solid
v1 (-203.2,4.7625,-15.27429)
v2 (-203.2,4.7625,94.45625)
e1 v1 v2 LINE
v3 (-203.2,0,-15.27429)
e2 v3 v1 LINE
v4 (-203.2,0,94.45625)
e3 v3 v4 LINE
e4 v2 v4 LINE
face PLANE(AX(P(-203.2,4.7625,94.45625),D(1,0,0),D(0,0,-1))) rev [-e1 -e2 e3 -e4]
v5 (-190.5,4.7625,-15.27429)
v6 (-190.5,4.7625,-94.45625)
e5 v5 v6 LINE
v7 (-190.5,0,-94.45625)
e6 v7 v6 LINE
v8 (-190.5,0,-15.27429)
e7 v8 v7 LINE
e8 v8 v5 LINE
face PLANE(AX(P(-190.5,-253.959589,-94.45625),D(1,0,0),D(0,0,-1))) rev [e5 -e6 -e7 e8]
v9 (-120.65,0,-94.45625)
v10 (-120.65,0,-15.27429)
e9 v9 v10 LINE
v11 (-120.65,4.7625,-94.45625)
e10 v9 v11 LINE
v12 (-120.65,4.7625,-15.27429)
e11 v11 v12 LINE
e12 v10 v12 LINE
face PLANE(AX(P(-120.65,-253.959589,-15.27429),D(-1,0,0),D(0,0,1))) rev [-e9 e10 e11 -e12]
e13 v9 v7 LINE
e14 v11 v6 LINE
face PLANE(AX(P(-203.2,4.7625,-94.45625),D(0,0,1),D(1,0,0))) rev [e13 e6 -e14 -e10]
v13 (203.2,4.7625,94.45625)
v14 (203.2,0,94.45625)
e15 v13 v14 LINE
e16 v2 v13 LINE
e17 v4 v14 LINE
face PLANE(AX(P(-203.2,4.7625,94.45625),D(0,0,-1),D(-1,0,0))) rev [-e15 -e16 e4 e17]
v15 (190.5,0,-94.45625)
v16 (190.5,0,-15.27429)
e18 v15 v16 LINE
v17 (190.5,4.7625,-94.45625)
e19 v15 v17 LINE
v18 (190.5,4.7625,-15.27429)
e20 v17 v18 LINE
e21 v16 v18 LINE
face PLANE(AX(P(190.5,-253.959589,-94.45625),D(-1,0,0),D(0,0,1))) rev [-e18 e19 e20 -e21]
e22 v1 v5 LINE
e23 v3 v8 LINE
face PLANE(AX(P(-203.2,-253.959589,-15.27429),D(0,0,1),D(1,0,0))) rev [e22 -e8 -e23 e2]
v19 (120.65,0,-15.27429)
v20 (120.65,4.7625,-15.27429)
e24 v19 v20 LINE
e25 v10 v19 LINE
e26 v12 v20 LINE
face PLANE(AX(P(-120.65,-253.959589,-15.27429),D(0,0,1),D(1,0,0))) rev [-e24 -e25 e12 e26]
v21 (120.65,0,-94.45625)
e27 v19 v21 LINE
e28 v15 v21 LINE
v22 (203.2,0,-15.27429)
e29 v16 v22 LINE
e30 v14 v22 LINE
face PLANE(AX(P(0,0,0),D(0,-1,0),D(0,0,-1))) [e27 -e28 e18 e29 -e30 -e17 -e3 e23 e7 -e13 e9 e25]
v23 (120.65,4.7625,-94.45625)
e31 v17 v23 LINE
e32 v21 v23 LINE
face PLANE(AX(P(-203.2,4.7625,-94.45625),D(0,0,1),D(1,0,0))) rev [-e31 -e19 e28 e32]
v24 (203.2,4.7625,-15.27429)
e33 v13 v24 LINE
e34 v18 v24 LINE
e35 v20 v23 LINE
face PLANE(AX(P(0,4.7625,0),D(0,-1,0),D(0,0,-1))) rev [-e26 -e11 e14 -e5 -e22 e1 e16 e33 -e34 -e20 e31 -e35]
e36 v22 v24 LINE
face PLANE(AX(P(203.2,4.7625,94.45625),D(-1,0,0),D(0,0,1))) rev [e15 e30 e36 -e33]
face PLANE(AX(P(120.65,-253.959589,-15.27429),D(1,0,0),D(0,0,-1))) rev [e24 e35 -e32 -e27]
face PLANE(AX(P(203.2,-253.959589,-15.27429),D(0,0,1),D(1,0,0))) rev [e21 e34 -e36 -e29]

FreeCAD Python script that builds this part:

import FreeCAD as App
import Part
import Sketcher
from FreeCAD import Vector
Q = App.Units.Quantity


def add_polygon(sketch, points):
    """Adds a closed chain of lines whose ends are joined by coincident constraints."""
    first, n = sketch.GeometryCount, len(points)
    for a, b in zip(points, points[1:] + points[:1]):
        sketch.addGeometry(Part.LineSegment(App.Vector(*a, 0), App.Vector(*b, 0)), False)
    for i in range(n):
        sketch.addConstraint(Sketcher.Constraint("Coincident", first + i, 2, first + (i + 1) % n, 1))

doc = App.newDocument("Part")
body = doc.addObject("PartDesign::Body", "Body")

# Sketch on XZ plane
sketch1 = body.newObject("Sketcher::SketchObject", "Sketch")
sketch1.AttachmentSupport = (doc.getObject("XZ_Plane"), [""])
sketch1.MapMode = "FlatFace"
add_polygon(sketch1, [(-203, -94), (-203, 94), (203, 94), (203, -94)])  # lines 0-3
sketch1.addConstraint(Sketcher.Constraint("Vertical", 0))
sketch1.addConstraint(Sketcher.Constraint("Horizontal", 1))
sketch1.addConstraint(Sketcher.Constraint("Vertical", 2))
sketch1.addConstraint(Sketcher.Constraint("Horizontal", 3))
sketch1.addConstraint(Sketcher.Constraint("Symmetric", 0, 2, 2, 2, -1, 1))
sketch1.addConstraint(Sketcher.Constraint("DistanceX", 1, 1, 1, 2, Q("16 in")))
sketch1.addConstraint(Sketcher.Constraint("DistanceY", 0, 1, 0, 2, Q("7.4375 in")))
pad1 = body.newObject("PartDesign::Pad", "Pad")
pad1.Profile = sketch1
pad1.Length = Q("0.1875 in")
pad1.Reversed = True

# Sketch on XZ plane
sketch2 = body.newObject("Sketcher::SketchObject", "Sketch001")
sketch2.AttachmentSupport = (doc.getObject("XZ_Plane"), [""])
sketch2.MapMode = "FlatFace"
sketch2.AttachmentOffset = App.Placement(Vector(0, 0, -0.1875 * 25.4), App.Rotation())
add_polygon(sketch2, [(-203, -94), (-203, -15), (-190, -15), (-190, -94)])  # lines 0-3
add_polygon(sketch2, [(190, -94), (190, -15), (203, -15), (203, -94)])  # lines 4-7
add_polygon(sketch2, [(-121, -94), (-121, -15), (121, -15), (121, -94)])  # lines 8-11
sketch2.addConstraint(Sketcher.Constraint("Vertical", 0))
sketch2.addConstraint(Sketcher.Constraint("Horizontal", 1))
sketch2.addConstraint(Sketcher.Constraint("Vertical", 2))
sketch2.addConstraint(Sketcher.Constraint("Horizontal", 3))
sketch2.addConstraint(Sketcher.Constraint("Vertical", 4))
sketch2.addConstraint(Sketcher.Constraint("Horizontal", 5))
sketch2.addConstraint(Sketcher.Constraint("Vertical", 6))
sketch2.addConstraint(Sketcher.Constraint("Horizontal", 7))
sketch2.addConstraint(Sketcher.Constraint("Vertical", 8))
sketch2.addConstraint(Sketcher.Constraint("Horizontal", 9))
sketch2.addConstraint(Sketcher.Constraint("Vertical", 10))
sketch2.addConstraint(Sketcher.Constraint("Horizontal", 11))
sketch2.addConstraint(Sketcher.Constraint("Symmetric", 1, 2, 4, 2, -2))
sketch2.addConstraint(Sketcher.Constraint("Symmetric", 3, 2, 6, 2, -2))
sketch2.addConstraint(Sketcher.Constraint("Horizontal", 5, 2, 8, 2))
sketch2.addConstraint(Sketcher.Constraint("Horizontal", 7, 2, 10, 2))
sketch2.addConstraint(Sketcher.Constraint("DistanceX", 1, 1, 1, 2, Q("0.5 in")))
sketch2.addConstraint(Sketcher.Constraint("DistanceX", 9, 1, 9, 2, Q("9.5 in")))
sketch2.addConstraint(Sketcher.Constraint("DistanceX", 0, 2, -1, 1, Q("8 in")))
sketch2.addConstraint(Sketcher.Constraint("DistanceX", 8, 2, -1, 1, Q("4.75 in")))
sketch2.addConstraint(Sketcher.Constraint("DistanceY", 0, 1, 0, 2, Q("3.1174 in")))
sketch2.addConstraint(Sketcher.Constraint("DistanceY", 2, 2, -1, 1, Q("3.71875 in")))
pocket1 = body.newObject("PartDesign::Pocket", "Pocket")
pocket1.Profile = sketch2
pocket1.Length = Q("0.1875 in")
pocket1.Reversed = True

doc.recompute()
